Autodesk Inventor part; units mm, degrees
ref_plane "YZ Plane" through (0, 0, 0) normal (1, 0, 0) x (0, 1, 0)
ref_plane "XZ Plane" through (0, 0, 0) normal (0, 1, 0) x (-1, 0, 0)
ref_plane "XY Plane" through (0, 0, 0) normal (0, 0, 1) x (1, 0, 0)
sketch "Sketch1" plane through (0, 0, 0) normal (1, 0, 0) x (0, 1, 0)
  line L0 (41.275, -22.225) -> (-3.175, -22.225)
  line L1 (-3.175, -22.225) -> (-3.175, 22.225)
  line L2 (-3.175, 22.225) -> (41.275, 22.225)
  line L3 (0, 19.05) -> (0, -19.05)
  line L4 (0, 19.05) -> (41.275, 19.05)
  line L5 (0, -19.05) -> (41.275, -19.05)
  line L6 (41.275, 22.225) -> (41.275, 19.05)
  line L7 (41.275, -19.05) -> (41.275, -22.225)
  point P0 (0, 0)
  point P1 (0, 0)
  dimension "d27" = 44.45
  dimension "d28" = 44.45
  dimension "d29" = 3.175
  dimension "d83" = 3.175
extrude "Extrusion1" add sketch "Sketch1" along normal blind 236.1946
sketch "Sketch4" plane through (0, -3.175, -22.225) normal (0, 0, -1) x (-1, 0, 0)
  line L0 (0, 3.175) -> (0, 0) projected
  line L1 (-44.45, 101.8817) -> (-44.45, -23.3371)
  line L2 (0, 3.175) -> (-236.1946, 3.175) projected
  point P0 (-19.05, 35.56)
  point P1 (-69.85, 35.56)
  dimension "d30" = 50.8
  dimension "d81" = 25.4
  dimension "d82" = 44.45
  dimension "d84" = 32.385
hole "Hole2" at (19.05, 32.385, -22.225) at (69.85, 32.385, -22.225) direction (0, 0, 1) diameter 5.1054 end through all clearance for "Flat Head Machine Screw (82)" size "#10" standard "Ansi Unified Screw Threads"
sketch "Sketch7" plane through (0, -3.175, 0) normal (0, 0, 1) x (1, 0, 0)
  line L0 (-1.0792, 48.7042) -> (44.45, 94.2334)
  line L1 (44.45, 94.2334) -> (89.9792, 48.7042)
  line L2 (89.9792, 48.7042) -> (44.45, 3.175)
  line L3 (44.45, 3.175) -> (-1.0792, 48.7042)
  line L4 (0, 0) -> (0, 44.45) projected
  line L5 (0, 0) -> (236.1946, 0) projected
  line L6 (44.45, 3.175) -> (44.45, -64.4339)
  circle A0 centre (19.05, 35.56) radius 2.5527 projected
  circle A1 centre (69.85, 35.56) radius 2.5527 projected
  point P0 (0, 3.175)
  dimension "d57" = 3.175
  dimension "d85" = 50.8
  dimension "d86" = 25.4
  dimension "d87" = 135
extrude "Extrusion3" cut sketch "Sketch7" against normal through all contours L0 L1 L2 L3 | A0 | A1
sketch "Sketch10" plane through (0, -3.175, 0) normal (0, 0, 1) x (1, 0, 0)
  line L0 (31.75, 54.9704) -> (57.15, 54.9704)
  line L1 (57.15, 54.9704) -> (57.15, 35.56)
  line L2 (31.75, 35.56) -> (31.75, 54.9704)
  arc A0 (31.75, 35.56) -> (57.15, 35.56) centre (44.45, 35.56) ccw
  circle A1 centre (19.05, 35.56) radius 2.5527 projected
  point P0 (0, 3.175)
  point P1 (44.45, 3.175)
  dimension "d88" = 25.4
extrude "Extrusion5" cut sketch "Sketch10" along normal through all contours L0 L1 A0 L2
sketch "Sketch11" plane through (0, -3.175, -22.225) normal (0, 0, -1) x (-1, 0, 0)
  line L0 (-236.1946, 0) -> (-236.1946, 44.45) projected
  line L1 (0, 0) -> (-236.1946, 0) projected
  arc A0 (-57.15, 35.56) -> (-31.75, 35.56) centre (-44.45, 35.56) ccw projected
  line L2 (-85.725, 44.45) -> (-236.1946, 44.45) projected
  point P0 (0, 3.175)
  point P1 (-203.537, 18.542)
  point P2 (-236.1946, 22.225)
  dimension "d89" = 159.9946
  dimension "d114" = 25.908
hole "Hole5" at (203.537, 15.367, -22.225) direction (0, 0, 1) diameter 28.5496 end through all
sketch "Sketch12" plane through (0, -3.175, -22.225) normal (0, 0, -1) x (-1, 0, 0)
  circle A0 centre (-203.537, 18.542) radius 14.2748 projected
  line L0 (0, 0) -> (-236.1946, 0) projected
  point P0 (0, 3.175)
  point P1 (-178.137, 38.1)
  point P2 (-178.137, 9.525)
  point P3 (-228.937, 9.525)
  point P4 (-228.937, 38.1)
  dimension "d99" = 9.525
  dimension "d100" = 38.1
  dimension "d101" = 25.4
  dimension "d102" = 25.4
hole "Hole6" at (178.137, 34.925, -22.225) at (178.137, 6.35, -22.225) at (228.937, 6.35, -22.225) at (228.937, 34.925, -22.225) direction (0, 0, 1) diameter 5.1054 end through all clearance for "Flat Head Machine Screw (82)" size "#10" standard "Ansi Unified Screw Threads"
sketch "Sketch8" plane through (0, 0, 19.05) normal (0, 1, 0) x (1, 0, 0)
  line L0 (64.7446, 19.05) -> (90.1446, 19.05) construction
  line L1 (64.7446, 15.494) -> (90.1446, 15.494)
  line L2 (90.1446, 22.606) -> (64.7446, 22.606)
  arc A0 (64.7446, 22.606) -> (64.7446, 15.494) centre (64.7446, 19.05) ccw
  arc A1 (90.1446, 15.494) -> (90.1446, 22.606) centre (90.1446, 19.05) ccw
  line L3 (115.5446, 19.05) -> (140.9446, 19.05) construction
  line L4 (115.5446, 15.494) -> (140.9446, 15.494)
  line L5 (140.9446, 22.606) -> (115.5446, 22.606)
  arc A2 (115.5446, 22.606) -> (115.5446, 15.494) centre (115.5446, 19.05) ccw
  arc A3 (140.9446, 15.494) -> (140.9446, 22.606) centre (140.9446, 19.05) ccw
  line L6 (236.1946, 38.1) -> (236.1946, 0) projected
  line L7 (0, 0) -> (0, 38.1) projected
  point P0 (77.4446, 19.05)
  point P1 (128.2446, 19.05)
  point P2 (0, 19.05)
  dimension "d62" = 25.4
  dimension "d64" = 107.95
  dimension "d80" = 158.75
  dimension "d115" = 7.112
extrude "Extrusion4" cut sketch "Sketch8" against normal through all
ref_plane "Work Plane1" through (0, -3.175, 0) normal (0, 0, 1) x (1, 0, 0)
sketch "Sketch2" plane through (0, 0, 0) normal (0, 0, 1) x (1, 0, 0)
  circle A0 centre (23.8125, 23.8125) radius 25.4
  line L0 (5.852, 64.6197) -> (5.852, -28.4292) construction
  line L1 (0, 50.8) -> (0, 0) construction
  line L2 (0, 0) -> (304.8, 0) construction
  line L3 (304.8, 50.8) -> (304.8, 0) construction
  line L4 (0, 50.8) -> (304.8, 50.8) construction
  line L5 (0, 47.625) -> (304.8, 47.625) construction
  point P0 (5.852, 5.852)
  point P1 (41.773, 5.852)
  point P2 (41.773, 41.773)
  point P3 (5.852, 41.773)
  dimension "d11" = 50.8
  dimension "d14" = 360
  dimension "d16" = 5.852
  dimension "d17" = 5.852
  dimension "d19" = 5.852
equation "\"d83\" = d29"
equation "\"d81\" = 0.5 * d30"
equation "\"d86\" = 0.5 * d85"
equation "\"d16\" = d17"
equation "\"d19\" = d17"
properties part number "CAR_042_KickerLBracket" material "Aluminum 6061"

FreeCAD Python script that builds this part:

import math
import FreeCAD as App
import Part
import Sketcher
from FreeCAD import Vector
Q = App.Units.Quantity


def add_polygon(sketch, points):
    """Adds a closed chain of lines whose ends are joined by coincident constraints."""
    first, n = sketch.GeometryCount, len(points)
    for a, b in zip(points, points[1:] + points[:1]):
        sketch.addGeometry(Part.LineSegment(App.Vector(*a, 0), App.Vector(*b, 0)), False)
    for i in range(n):
        sketch.addConstraint(Sketcher.Constraint("Coincident", first + i, 2, first + (i + 1) % n, 1))

doc = App.newDocument("Part")
params = doc.addObject("Spreadsheet::Sheet", "Params")
for row, (alias, value) in enumerate([
    ("sketch1_width", "1.75 in"),
    ("sketch1_height", "0.125 in"),
    ("pad1_length", "9.299 in"),
    ("sketch2_diameter", "0.201 in"),
    ("hole_diameter", "0.201 in"),
    ("sketch4_radius", "0.5 in"),
    ("sketch5_diameter", "1.124 in"),
    ("hole2_diameter", "1.124 in"),
    ("sketch6_diameter", "0.201 in"),
    ("hole3_diameter", "0.201 in"),
    ("sketch7_width", "1 in"),
    ("sketch7_radius", "0.14 in"),
], start=1):
    params.set(f"A{row}", alias)
    params.set(f"B{row}", "=" + value)
    params.setAlias(f"B{row}", alias)

body = doc.addObject("PartDesign::Body", "Body")

# Sketch on YZ plane
sketch1 = body.newObject("Sketcher::SketchObject", "Sketch")
sketch1.AttachmentSupport = (doc.getObject("YZ_Plane"), [""])
sketch1.MapMode = "FlatFace"
add_polygon(sketch1, [(-3.2, -22.2), (41.3, -22.2), (41.3, -19.1), (0, -19.1), (0, 19.1), (41.3, 19.1), (41.3, 22.2), (-3.2, 22.2)])  # lines 0-7
sketch1.addConstraint([
    Sketcher.Constraint("Horizontal", 0),
    Sketcher.Constraint("Vertical", 1),
    Sketcher.Constraint("Horizontal", 2),
    Sketcher.Constraint("Vertical", 3),
    Sketcher.Constraint("Horizontal", 4),
    Sketcher.Constraint("Vertical", 5),
    Sketcher.Constraint("Horizontal", 6),
    Sketcher.Constraint("Vertical", 7),
    Sketcher.Constraint("Symmetric", 2, 2, 3, 2, -1, 1),
    Sketcher.Constraint("Symmetric", 0, 2, 5, 2, -1),
    Sketcher.Constraint("Equal", 6, 7),
    Sketcher.Constraint("DistanceX", 0, 1, 0, 2, Q("1.75 in")),
    Sketcher.Constraint("DistanceY", 1, 1, 1, 2, Q("0.125 in")),
    Sketcher.Constraint("DistanceX", 6, 2, -1, 1, Q("0.125 in")),
])
sketch1.setExpression("Constraints[19]", "Params.sketch1_width")
sketch1.setExpression("Constraints[20]", "Params.sketch1_height")
pad1 = body.newObject("PartDesign::Pad", "Pad")
pad1.Profile = sketch1
pad1.setExpression("Length", "Params.pad1_length")

# Sketch on XY plane
sketch2 = body.newObject("Sketcher::SketchObject", "Sketch001")
sketch2.AttachmentSupport = (doc.getObject("XY_Plane"), [""])
sketch2.MapMode = "FlatFace"
sketch2.AttachmentOffset = App.Placement(Vector(0, 0, -0.875 * 25.4), App.Rotation())
sketch2.addGeometry([
    Part.Circle(Vector(19.1, 32.4, 0), Vector(0, 0, 1), 2.6),
    Part.Circle(Vector(69.8, 32.4, 0), Vector(0, 0, 1), 2.6),
], False)
sketch2.addConstraint([
    Sketcher.Constraint("Equal", 0, 1),
    Sketcher.Constraint("Horizontal", 0, 3, 1, 3),
    Sketcher.Constraint("Diameter", 0, Q("0.201 in")),
    Sketcher.Constraint("DistanceX", 0, 3, 1, 3, Q("2 in")),
    Sketcher.Constraint("DistanceX", -1, 1, 0, 3, Q("0.75 in")),
    Sketcher.Constraint("DistanceY", -1, 1, 0, 3, Q("1.275 in")),
])
sketch2.setExpression("Constraints[2]", "Params.sketch2_diameter")
doc.recompute()
hole = body.newObject("PartDesign::Hole", "Hole")
hole.Profile = sketch2
hole.ThreadType = "None"
hole.setExpression("Diameter", "Params.hole_diameter")
hole.DepthType = "ThroughAll"
hole.Reversed = True

# Sketch on XY plane
sketch3 = body.newObject("Sketcher::SketchObject", "Sketch002")
sketch3.AttachmentSupport = (doc.getObject("XY_Plane"), [""])
sketch3.MapMode = "FlatFace"
add_polygon(sketch3, [(44, 91), (-1, 46), (44, 0), (90, 46)])  # lines 0-3
sketch3.addConstraint([
    Sketcher.Constraint("PointOnObject", 1, 2, -1),
    Sketcher.Constraint("Perpendicular", 0, 1),
    Sketcher.Constraint("Perpendicular", 1, 2),
    Sketcher.Constraint("Perpendicular", 2, 3),
    Sketcher.Constraint("Horizontal", 0, 2, 2, 2),
    Sketcher.Constraint("Vertical", 1, 2, 3, 2),
    Sketcher.Constraint("DistanceX", -1, 1, 1, 2, Q("1.75 in")),
    Sketcher.Constraint("DistanceX", 0, 2, -1, 1, Q("0.0425 in")),
])
pocket1 = body.newObject("PartDesign::Pocket", "Pocket")
pocket1.Profile = sketch3
pocket1.Type = "ThroughAll"

# Sketch on XY plane
sketch4 = body.newObject("Sketcher::SketchObject", "Sketch003")
sketch4.AttachmentSupport = (doc.getObject("XY_Plane"), [""])
sketch4.MapMode = "FlatFace"
sketch4.addGeometry([
    Part.LineSegment(Vector(57, 52, 0), Vector(32, 52, 0)),
    Part.LineSegment(Vector(32, 52, 0), Vector(32, 32, 0)),
    Part.ArcOfCircle(Part.Circle(Vector(44, 32, 0), Vector(0, 0, 1), 13), math.radians(180), math.radians(360)),
    Part.LineSegment(Vector(57, 32, 0), Vector(57, 52, 0)),
], False)
sketch4.addConstraint([
    Sketcher.Constraint("Coincident", 0, 2, 1, 1),
    Sketcher.Constraint("Tangent", 1, 2, 2, 1),
    Sketcher.Constraint("Tangent", 2, 2, 3, 1),
    Sketcher.Constraint("Coincident", 3, 2, 0, 1),
    Sketcher.Constraint("Horizontal", 0),
    Sketcher.Constraint("Vertical", 1),
    Sketcher.Constraint("Vertical", 3),
    Sketcher.Constraint("Radius", 2, Q("0.5 in")),
    Sketcher.Constraint("DistanceX", -1, 1, 2, 3, Q("1.75 in")),
    Sketcher.Constraint("DistanceY", 1, 2, 1, 1, Q("0.7642 in")),
    Sketcher.Constraint("DistanceY", -1, 1, 2, 3, Q("1.275 in")),
])
sketch4.setExpression("Constraints[7]", "Params.sketch4_radius")
pocket2 = body.newObject("PartDesign::Pocket", "Pocket001")
pocket2.Profile = sketch4
pocket2.Type = "ThroughAll"
pocket2.Reversed = True

# Sketch on XY plane
sketch5 = body.newObject("Sketcher::SketchObject", "Sketch004")
sketch5.AttachmentSupport = (doc.getObject("XY_Plane"), [""])
sketch5.MapMode = "FlatFace"
sketch5.AttachmentOffset = App.Placement(Vector(0, 0, -0.875 * 25.4), App.Rotation())
sketch5.addGeometry(Part.Circle(Vector(204, 15, 0), Vector(0, 0, 1), 14), False)
sketch5.addConstraint([
    Sketcher.Constraint("Diameter", 0, Q("1.124 in")),
    Sketcher.Constraint("DistanceY", -1, 1, 0, 3, Q("0.605 in")),
    Sketcher.Constraint("DistanceX", -1, 1, 0, 3, 203.537),
])
sketch5.setExpression("Constraints[0]", "Params.sketch5_diameter")
doc.recompute()
hole2 = body.newObject("PartDesign::Hole", "Hole001")
hole2.Profile = sketch5
hole2.ThreadType = "None"
hole2.setExpression("Diameter", "Params.hole2_diameter")
hole2.DepthType = "ThroughAll"
hole2.Reversed = True

# Sketch on XY plane
sketch6 = body.newObject("Sketcher::SketchObject", "Sketch005")
sketch6.AttachmentSupport = (doc.getObject("XY_Plane"), [""])
sketch6.MapMode = "FlatFace"
sketch6.AttachmentOffset = App.Placement(Vector(0, 0, -0.875 * 25.4), App.Rotation())
sketch6.addGeometry([
    Part.Circle(Vector(178.1, 34.9, 0), Vector(0, 0, 1), 2.6),
    Part.Circle(Vector(178.1, 6.3, 0), Vector(0, 0, 1), 2.6),
    Part.Circle(Vector(228.9, 6.3, 0), Vector(0, 0, 1), 2.6),
    Part.Circle(Vector(228.9, 34.9, 0), Vector(0, 0, 1), 2.6),
], False)
sketch6.addConstraint([
    Sketcher.Constraint("Equal", 0, 1),
    Sketcher.Constraint("Equal", 1, 2),
    Sketcher.Constraint("Equal", 2, 3),
    Sketcher.Constraint("Horizontal", 1, 3, 2, 3),
    Sketcher.Constraint("Horizontal", 0, 3, 3, 3),
    Sketcher.Constraint("Vertical", 0, 3, 1, 3),
    Sketcher.Constraint("Vertical", 2, 3, 3, 3),
    Sketcher.Constraint("Diameter", 0, Q("0.201 in")),
    Sketcher.Constraint("DistanceX", 1, 3, 2, 3, Q("2 in")),
    Sketcher.Constraint("DistanceY", -1, 1, 1, 3, Q("0.25 in")),
    Sketcher.Constraint("DistanceY", -1, 1, 0, 3, Q("1.375 in")),
    Sketcher.Constraint("DistanceX", -1, 1, 0, 3, 178.137),
])
sketch6.setExpression("Constraints[7]", "Params.sketch6_diameter")
doc.recompute()
hole3 = body.newObject("PartDesign::Hole", "Hole002")
hole3.Profile = sketch6
hole3.ThreadType = "None"
hole3.setExpression("Diameter", "Params.hole3_diameter")
hole3.DepthType = "ThroughAll"
hole3.Reversed = True

# Sketch on XZ plane
sketch7 = body.newObject("Sketcher::SketchObject", "Sketch006")
sketch7.AttachmentSupport = (doc.getObject("XZ_Plane"), [""])
sketch7.MapMode = "FlatFace"
sketch7.addGeometry([
    Part.ArcOfCircle(Part.Circle(Vector(64.7, 0, 0), Vector(0, 0, 1), 3.6), math.radians(90), math.radians(270)),  # 0
    Part.LineSegment(Vector(64.7, 3.6, 0), Vector(90.1, 3.6, 0)),  # 1
    Part.ArcOfCircle(Part.Circle(Vector(90.1, 0, 0), Vector(0, 0, 1), 3.6), math.radians(-90), math.radians(90)),  # 2
    Part.LineSegment(Vector(90.1, -3.6, 0), Vector(64.7, -3.6, 0)),  # 3
    Part.ArcOfCircle(Part.Circle(Vector(115.5, 0, 0), Vector(0, 0, 1), 3.6), math.radians(90), math.radians(270)),  # 4
    Part.LineSegment(Vector(115.5, 3.6, 0), Vector(140.9, 3.6, 0)),  # 5
    Part.ArcOfCircle(Part.Circle(Vector(140.9, 0, 0), Vector(0, 0, 1), 3.6), math.radians(-90), math.radians(90)),  # 6
    Part.LineSegment(Vector(140.9, -3.6, 0), Vector(115.5, -3.6, 0)),  # 7
], False)
sketch7.addConstraint([
    Sketcher.Constraint("Tangent", 0, 1, 1, 1),
    Sketcher.Constraint("Tangent", 1, 2, 2, 2),
    Sketcher.Constraint("Tangent", 2, 1, 3, 1),
    Sketcher.Constraint("Tangent", 3, 2, 0, 2),
    Sketcher.Constraint("Tangent", 4, 1, 5, 1),
    Sketcher.Constraint("Tangent", 5, 2, 6, 2),
    Sketcher.Constraint("Tangent", 6, 1, 7, 1),
    Sketcher.Constraint("Tangent", 7, 2, 4, 2),
    Sketcher.Constraint("Horizontal", 1),
    Sketcher.Constraint("Horizontal", 3),
    Sketcher.Constraint("Horizontal", 5),
    Sketcher.Constraint("Horizontal", 7),
    Sketcher.Constraint("Equal", 2, 4),
    Sketcher.Constraint("PointOnObject", 0, 3, -1),
    Sketcher.Constraint("PointOnObject", 4, 3, -1),
    Sketcher.Constraint("Equal", 3, 5),
    Sketcher.Constraint("DistanceX", 1, 1, 1, 2, Q("1 in")),
    Sketcher.Constraint("Radius", 0, Q("0.14 in")),
    Sketcher.Constraint("DistanceX", 2, 3, 4, 3, Q("1 in")),
    Sketcher.Constraint("DistanceX", -1, 1, 0, 3, Q("2.549 in")),
])
sketch7.setExpression("Constraints[16]", "Params.sketch7_width")
sketch7.setExpression("Constraints[17]", "Params.sketch7_radius")
pocket3 = body.newObject("PartDesign::Pocket", "Pocket002")
pocket3.Profile = sketch7
pocket3.Type = "ThroughAll"
pocket3.Reversed = True

doc.recompute()
